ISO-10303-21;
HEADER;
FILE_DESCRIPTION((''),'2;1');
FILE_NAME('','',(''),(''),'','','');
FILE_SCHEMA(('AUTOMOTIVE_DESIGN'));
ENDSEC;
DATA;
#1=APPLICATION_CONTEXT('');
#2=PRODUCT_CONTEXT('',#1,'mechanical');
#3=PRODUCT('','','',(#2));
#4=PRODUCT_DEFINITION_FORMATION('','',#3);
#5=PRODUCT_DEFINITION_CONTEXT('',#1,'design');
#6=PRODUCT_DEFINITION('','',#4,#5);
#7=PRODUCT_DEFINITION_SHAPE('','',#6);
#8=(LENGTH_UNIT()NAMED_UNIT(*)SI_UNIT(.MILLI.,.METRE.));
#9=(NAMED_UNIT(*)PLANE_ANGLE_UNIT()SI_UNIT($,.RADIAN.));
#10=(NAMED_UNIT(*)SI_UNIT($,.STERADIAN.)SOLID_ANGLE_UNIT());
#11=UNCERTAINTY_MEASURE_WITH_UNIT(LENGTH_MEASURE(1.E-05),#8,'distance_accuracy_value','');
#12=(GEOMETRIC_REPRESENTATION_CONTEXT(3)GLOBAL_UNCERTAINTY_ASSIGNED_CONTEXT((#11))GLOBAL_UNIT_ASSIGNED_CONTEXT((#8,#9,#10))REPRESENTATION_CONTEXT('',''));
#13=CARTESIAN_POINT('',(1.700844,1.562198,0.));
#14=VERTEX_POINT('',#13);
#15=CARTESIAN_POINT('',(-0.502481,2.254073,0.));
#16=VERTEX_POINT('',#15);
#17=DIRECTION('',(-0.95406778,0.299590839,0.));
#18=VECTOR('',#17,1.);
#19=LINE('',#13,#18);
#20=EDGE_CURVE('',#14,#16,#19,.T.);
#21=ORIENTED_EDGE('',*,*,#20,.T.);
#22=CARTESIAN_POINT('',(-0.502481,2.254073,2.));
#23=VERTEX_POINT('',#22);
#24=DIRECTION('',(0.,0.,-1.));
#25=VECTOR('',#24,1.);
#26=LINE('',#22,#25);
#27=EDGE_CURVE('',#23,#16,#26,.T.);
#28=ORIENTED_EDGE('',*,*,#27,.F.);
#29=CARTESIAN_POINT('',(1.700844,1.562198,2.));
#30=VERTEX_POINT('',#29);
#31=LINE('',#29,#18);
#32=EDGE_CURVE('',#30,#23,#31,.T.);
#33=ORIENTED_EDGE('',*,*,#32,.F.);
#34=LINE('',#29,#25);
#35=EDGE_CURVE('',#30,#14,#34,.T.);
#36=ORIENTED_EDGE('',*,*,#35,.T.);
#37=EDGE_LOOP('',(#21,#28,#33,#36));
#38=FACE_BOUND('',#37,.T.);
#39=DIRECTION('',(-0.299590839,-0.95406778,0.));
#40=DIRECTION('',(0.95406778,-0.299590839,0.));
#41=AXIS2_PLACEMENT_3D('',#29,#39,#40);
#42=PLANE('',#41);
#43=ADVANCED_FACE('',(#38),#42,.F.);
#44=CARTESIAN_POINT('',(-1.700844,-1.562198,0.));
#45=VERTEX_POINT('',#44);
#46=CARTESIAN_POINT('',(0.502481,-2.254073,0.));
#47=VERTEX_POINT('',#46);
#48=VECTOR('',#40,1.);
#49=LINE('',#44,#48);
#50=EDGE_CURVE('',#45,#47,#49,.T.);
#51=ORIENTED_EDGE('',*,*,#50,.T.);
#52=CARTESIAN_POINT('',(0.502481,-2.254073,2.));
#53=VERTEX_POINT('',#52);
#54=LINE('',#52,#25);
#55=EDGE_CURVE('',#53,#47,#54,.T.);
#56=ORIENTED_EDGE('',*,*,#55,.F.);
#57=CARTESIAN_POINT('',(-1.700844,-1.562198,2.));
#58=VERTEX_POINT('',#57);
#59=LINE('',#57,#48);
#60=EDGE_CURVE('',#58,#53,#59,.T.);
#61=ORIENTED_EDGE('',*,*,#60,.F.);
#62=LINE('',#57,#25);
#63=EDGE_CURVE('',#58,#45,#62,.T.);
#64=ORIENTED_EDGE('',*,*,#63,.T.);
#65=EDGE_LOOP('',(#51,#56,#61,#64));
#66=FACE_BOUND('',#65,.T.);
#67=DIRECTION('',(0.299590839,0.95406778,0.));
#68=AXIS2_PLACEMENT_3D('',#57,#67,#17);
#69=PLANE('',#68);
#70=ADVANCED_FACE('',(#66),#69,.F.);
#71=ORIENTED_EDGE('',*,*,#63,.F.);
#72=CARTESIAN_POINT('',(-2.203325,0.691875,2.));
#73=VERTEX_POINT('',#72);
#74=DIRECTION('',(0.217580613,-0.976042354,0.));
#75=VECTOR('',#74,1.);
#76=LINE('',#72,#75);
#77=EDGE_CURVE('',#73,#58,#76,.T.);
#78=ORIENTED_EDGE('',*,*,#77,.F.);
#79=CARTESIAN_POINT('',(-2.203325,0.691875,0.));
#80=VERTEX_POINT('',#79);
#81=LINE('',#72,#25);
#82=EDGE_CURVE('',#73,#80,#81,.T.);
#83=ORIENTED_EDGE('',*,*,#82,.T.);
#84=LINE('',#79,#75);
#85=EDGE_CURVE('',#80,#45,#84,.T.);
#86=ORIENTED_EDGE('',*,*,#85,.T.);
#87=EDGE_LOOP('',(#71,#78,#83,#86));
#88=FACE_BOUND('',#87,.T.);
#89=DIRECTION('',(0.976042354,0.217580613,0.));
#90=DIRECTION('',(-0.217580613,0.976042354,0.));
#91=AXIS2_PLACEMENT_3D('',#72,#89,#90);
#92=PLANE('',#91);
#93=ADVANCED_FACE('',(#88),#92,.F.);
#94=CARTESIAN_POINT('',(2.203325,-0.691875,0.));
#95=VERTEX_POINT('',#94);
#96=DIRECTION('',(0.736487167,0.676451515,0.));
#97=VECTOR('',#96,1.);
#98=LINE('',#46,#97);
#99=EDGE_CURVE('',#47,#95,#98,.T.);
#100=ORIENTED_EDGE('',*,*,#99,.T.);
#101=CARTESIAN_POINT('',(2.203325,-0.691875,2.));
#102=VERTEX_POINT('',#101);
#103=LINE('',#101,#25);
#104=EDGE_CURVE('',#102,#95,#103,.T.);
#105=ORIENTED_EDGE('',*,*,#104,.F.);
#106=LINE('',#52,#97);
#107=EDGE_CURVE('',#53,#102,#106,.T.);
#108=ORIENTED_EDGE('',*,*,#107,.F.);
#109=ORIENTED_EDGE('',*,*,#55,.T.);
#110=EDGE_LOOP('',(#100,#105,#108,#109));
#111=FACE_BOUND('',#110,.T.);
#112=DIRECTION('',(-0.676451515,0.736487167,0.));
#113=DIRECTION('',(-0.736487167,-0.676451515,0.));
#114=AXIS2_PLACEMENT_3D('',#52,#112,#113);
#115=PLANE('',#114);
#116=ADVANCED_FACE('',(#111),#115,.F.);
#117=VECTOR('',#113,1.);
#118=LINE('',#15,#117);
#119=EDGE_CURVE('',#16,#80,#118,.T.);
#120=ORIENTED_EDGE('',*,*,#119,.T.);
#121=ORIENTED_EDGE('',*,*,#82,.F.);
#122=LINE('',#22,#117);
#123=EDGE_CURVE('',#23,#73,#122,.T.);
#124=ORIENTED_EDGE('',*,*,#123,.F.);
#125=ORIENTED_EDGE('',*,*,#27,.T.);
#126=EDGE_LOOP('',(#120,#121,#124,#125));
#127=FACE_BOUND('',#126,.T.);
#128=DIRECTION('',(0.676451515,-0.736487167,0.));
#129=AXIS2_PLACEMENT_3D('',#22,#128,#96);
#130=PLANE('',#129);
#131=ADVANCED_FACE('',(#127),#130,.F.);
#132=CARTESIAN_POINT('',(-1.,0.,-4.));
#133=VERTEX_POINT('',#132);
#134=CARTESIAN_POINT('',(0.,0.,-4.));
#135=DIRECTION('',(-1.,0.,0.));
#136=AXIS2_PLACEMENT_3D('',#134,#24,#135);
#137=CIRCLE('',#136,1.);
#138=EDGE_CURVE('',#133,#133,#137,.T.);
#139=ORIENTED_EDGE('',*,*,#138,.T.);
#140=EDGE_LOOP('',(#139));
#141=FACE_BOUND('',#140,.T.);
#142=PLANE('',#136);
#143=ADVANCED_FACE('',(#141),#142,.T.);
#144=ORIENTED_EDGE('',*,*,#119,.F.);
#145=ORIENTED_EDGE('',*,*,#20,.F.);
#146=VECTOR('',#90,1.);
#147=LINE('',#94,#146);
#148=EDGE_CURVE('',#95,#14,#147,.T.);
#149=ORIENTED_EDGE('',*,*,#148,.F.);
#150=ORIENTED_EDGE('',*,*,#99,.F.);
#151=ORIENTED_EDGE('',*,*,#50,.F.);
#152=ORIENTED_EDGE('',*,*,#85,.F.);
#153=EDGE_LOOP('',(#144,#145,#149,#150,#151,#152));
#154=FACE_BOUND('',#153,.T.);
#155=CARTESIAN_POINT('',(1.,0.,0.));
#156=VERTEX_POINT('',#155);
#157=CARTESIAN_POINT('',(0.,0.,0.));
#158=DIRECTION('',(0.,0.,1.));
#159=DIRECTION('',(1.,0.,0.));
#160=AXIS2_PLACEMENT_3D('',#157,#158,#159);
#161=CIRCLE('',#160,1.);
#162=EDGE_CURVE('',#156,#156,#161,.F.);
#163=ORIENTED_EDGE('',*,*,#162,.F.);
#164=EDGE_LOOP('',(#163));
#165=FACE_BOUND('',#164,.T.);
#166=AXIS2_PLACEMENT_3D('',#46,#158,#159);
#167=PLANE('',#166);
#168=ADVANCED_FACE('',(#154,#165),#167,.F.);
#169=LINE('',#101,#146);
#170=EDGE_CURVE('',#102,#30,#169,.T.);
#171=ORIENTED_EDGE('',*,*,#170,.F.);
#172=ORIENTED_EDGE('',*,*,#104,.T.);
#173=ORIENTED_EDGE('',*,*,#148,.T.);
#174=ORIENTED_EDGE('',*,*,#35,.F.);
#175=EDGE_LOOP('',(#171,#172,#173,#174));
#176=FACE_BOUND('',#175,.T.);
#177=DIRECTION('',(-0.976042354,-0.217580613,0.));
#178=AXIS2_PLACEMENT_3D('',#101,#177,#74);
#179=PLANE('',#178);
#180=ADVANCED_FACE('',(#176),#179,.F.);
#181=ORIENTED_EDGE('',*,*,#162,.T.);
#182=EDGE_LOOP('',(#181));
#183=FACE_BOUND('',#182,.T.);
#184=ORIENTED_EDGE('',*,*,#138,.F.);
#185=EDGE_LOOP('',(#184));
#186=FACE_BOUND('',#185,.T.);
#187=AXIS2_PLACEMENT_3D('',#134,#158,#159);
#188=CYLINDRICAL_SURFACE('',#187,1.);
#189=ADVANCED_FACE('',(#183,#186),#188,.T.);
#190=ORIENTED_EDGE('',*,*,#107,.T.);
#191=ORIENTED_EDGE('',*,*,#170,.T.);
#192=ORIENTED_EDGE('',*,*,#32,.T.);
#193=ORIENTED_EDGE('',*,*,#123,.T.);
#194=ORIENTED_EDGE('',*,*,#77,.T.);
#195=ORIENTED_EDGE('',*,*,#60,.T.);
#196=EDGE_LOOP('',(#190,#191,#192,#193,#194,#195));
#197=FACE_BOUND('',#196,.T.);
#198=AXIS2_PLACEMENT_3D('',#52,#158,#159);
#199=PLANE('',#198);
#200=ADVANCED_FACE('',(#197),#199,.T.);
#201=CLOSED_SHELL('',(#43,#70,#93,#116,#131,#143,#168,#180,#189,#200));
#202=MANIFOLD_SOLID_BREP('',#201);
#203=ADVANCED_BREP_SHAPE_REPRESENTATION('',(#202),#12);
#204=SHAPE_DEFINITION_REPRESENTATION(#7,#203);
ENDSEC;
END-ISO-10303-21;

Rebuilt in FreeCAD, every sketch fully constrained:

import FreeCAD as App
import Part
import Sketcher
Q = App.Units.Quantity


def add_polygon(sketch, points):
    """Adds a closed chain of lines whose ends are joined by coincident constraints."""
    first, n = sketch.GeometryCount, len(points)
    for a, b in zip(points, points[1:] + points[:1]):
        sketch.addGeometry(Part.LineSegment(App.Vector(*a, 0), App.Vector(*b, 0)), False)
    for i in range(n):
        sketch.addConstraint(Sketcher.Constraint("Coincident", first + i, 2, first + (i + 1) % n, 1))

doc = App.newDocument("Part")
body = doc.addObject("PartDesign::Body", "Body")

# Sketch on XY plane
sketch1 = body.newObject("Sketcher::SketchObject", "Sketch")
sketch1.AttachmentSupport = (doc.getObject("XY_Plane"), [""])
sketch1.MapMode = "FlatFace"
add_polygon(sketch1, [(0.5, -2.3), (2.2, -0.7), (1.7, 1.6), (-0.5, 2.3), (-2.2, 0.7), (-1.7, -1.6)])  # lines 0-5
sketch1.addConstraint([
    Sketcher.Constraint("Symmetric", 0, 2, 3, 2, -1, 1),
    Sketcher.Constraint("Symmetric", 1, 2, 4, 2, -1, 1),
    Sketcher.Constraint("Symmetric", 2, 2, 5, 2, -1, 1),
    Sketcher.Constraint("Equal", 0, 1),
    Sketcher.Constraint("Equal", 1, 2),
    Sketcher.Constraint("Distance", 0, Q("2.309401 mm")),
    Sketcher.Constraint("DistanceX", 2, 2, -1, 1, Q("0.502481 mm")),
    Sketcher.Constraint("DistanceX", 1, 2, 0, 2, Q("0.502481 mm")),
    Sketcher.Constraint("DistanceY", 0, 2, 2, 2, Q("2.945949 mm")),
])
pad1 = body.newObject("PartDesign::Pad", "Pad")
pad1.Profile = sketch1
pad1.Length = 2

# Sketch on XY plane
sketch2 = body.newObject("Sketcher::SketchObject", "Sketch001")
sketch2.AttachmentSupport = (doc.getObject("XY_Plane"), [""])
sketch2.MapMode = "FlatFace"
sketch2.addGeometry(Part.Circle(App.Vector(0, 0, 0), App.Vector(0, 0, 1), 1), False)
sketch2.addConstraint([
    Sketcher.Constraint("Coincident", 0, 3, -1, 1),
    Sketcher.Constraint("Diameter", 0, Q("2 mm")),
])
pad2 = body.newObject("PartDesign::Pad", "Pad001")
pad2.Profile = sketch2
pad2.Length = 4
pad2.Reversed = True

doc.recompute()
